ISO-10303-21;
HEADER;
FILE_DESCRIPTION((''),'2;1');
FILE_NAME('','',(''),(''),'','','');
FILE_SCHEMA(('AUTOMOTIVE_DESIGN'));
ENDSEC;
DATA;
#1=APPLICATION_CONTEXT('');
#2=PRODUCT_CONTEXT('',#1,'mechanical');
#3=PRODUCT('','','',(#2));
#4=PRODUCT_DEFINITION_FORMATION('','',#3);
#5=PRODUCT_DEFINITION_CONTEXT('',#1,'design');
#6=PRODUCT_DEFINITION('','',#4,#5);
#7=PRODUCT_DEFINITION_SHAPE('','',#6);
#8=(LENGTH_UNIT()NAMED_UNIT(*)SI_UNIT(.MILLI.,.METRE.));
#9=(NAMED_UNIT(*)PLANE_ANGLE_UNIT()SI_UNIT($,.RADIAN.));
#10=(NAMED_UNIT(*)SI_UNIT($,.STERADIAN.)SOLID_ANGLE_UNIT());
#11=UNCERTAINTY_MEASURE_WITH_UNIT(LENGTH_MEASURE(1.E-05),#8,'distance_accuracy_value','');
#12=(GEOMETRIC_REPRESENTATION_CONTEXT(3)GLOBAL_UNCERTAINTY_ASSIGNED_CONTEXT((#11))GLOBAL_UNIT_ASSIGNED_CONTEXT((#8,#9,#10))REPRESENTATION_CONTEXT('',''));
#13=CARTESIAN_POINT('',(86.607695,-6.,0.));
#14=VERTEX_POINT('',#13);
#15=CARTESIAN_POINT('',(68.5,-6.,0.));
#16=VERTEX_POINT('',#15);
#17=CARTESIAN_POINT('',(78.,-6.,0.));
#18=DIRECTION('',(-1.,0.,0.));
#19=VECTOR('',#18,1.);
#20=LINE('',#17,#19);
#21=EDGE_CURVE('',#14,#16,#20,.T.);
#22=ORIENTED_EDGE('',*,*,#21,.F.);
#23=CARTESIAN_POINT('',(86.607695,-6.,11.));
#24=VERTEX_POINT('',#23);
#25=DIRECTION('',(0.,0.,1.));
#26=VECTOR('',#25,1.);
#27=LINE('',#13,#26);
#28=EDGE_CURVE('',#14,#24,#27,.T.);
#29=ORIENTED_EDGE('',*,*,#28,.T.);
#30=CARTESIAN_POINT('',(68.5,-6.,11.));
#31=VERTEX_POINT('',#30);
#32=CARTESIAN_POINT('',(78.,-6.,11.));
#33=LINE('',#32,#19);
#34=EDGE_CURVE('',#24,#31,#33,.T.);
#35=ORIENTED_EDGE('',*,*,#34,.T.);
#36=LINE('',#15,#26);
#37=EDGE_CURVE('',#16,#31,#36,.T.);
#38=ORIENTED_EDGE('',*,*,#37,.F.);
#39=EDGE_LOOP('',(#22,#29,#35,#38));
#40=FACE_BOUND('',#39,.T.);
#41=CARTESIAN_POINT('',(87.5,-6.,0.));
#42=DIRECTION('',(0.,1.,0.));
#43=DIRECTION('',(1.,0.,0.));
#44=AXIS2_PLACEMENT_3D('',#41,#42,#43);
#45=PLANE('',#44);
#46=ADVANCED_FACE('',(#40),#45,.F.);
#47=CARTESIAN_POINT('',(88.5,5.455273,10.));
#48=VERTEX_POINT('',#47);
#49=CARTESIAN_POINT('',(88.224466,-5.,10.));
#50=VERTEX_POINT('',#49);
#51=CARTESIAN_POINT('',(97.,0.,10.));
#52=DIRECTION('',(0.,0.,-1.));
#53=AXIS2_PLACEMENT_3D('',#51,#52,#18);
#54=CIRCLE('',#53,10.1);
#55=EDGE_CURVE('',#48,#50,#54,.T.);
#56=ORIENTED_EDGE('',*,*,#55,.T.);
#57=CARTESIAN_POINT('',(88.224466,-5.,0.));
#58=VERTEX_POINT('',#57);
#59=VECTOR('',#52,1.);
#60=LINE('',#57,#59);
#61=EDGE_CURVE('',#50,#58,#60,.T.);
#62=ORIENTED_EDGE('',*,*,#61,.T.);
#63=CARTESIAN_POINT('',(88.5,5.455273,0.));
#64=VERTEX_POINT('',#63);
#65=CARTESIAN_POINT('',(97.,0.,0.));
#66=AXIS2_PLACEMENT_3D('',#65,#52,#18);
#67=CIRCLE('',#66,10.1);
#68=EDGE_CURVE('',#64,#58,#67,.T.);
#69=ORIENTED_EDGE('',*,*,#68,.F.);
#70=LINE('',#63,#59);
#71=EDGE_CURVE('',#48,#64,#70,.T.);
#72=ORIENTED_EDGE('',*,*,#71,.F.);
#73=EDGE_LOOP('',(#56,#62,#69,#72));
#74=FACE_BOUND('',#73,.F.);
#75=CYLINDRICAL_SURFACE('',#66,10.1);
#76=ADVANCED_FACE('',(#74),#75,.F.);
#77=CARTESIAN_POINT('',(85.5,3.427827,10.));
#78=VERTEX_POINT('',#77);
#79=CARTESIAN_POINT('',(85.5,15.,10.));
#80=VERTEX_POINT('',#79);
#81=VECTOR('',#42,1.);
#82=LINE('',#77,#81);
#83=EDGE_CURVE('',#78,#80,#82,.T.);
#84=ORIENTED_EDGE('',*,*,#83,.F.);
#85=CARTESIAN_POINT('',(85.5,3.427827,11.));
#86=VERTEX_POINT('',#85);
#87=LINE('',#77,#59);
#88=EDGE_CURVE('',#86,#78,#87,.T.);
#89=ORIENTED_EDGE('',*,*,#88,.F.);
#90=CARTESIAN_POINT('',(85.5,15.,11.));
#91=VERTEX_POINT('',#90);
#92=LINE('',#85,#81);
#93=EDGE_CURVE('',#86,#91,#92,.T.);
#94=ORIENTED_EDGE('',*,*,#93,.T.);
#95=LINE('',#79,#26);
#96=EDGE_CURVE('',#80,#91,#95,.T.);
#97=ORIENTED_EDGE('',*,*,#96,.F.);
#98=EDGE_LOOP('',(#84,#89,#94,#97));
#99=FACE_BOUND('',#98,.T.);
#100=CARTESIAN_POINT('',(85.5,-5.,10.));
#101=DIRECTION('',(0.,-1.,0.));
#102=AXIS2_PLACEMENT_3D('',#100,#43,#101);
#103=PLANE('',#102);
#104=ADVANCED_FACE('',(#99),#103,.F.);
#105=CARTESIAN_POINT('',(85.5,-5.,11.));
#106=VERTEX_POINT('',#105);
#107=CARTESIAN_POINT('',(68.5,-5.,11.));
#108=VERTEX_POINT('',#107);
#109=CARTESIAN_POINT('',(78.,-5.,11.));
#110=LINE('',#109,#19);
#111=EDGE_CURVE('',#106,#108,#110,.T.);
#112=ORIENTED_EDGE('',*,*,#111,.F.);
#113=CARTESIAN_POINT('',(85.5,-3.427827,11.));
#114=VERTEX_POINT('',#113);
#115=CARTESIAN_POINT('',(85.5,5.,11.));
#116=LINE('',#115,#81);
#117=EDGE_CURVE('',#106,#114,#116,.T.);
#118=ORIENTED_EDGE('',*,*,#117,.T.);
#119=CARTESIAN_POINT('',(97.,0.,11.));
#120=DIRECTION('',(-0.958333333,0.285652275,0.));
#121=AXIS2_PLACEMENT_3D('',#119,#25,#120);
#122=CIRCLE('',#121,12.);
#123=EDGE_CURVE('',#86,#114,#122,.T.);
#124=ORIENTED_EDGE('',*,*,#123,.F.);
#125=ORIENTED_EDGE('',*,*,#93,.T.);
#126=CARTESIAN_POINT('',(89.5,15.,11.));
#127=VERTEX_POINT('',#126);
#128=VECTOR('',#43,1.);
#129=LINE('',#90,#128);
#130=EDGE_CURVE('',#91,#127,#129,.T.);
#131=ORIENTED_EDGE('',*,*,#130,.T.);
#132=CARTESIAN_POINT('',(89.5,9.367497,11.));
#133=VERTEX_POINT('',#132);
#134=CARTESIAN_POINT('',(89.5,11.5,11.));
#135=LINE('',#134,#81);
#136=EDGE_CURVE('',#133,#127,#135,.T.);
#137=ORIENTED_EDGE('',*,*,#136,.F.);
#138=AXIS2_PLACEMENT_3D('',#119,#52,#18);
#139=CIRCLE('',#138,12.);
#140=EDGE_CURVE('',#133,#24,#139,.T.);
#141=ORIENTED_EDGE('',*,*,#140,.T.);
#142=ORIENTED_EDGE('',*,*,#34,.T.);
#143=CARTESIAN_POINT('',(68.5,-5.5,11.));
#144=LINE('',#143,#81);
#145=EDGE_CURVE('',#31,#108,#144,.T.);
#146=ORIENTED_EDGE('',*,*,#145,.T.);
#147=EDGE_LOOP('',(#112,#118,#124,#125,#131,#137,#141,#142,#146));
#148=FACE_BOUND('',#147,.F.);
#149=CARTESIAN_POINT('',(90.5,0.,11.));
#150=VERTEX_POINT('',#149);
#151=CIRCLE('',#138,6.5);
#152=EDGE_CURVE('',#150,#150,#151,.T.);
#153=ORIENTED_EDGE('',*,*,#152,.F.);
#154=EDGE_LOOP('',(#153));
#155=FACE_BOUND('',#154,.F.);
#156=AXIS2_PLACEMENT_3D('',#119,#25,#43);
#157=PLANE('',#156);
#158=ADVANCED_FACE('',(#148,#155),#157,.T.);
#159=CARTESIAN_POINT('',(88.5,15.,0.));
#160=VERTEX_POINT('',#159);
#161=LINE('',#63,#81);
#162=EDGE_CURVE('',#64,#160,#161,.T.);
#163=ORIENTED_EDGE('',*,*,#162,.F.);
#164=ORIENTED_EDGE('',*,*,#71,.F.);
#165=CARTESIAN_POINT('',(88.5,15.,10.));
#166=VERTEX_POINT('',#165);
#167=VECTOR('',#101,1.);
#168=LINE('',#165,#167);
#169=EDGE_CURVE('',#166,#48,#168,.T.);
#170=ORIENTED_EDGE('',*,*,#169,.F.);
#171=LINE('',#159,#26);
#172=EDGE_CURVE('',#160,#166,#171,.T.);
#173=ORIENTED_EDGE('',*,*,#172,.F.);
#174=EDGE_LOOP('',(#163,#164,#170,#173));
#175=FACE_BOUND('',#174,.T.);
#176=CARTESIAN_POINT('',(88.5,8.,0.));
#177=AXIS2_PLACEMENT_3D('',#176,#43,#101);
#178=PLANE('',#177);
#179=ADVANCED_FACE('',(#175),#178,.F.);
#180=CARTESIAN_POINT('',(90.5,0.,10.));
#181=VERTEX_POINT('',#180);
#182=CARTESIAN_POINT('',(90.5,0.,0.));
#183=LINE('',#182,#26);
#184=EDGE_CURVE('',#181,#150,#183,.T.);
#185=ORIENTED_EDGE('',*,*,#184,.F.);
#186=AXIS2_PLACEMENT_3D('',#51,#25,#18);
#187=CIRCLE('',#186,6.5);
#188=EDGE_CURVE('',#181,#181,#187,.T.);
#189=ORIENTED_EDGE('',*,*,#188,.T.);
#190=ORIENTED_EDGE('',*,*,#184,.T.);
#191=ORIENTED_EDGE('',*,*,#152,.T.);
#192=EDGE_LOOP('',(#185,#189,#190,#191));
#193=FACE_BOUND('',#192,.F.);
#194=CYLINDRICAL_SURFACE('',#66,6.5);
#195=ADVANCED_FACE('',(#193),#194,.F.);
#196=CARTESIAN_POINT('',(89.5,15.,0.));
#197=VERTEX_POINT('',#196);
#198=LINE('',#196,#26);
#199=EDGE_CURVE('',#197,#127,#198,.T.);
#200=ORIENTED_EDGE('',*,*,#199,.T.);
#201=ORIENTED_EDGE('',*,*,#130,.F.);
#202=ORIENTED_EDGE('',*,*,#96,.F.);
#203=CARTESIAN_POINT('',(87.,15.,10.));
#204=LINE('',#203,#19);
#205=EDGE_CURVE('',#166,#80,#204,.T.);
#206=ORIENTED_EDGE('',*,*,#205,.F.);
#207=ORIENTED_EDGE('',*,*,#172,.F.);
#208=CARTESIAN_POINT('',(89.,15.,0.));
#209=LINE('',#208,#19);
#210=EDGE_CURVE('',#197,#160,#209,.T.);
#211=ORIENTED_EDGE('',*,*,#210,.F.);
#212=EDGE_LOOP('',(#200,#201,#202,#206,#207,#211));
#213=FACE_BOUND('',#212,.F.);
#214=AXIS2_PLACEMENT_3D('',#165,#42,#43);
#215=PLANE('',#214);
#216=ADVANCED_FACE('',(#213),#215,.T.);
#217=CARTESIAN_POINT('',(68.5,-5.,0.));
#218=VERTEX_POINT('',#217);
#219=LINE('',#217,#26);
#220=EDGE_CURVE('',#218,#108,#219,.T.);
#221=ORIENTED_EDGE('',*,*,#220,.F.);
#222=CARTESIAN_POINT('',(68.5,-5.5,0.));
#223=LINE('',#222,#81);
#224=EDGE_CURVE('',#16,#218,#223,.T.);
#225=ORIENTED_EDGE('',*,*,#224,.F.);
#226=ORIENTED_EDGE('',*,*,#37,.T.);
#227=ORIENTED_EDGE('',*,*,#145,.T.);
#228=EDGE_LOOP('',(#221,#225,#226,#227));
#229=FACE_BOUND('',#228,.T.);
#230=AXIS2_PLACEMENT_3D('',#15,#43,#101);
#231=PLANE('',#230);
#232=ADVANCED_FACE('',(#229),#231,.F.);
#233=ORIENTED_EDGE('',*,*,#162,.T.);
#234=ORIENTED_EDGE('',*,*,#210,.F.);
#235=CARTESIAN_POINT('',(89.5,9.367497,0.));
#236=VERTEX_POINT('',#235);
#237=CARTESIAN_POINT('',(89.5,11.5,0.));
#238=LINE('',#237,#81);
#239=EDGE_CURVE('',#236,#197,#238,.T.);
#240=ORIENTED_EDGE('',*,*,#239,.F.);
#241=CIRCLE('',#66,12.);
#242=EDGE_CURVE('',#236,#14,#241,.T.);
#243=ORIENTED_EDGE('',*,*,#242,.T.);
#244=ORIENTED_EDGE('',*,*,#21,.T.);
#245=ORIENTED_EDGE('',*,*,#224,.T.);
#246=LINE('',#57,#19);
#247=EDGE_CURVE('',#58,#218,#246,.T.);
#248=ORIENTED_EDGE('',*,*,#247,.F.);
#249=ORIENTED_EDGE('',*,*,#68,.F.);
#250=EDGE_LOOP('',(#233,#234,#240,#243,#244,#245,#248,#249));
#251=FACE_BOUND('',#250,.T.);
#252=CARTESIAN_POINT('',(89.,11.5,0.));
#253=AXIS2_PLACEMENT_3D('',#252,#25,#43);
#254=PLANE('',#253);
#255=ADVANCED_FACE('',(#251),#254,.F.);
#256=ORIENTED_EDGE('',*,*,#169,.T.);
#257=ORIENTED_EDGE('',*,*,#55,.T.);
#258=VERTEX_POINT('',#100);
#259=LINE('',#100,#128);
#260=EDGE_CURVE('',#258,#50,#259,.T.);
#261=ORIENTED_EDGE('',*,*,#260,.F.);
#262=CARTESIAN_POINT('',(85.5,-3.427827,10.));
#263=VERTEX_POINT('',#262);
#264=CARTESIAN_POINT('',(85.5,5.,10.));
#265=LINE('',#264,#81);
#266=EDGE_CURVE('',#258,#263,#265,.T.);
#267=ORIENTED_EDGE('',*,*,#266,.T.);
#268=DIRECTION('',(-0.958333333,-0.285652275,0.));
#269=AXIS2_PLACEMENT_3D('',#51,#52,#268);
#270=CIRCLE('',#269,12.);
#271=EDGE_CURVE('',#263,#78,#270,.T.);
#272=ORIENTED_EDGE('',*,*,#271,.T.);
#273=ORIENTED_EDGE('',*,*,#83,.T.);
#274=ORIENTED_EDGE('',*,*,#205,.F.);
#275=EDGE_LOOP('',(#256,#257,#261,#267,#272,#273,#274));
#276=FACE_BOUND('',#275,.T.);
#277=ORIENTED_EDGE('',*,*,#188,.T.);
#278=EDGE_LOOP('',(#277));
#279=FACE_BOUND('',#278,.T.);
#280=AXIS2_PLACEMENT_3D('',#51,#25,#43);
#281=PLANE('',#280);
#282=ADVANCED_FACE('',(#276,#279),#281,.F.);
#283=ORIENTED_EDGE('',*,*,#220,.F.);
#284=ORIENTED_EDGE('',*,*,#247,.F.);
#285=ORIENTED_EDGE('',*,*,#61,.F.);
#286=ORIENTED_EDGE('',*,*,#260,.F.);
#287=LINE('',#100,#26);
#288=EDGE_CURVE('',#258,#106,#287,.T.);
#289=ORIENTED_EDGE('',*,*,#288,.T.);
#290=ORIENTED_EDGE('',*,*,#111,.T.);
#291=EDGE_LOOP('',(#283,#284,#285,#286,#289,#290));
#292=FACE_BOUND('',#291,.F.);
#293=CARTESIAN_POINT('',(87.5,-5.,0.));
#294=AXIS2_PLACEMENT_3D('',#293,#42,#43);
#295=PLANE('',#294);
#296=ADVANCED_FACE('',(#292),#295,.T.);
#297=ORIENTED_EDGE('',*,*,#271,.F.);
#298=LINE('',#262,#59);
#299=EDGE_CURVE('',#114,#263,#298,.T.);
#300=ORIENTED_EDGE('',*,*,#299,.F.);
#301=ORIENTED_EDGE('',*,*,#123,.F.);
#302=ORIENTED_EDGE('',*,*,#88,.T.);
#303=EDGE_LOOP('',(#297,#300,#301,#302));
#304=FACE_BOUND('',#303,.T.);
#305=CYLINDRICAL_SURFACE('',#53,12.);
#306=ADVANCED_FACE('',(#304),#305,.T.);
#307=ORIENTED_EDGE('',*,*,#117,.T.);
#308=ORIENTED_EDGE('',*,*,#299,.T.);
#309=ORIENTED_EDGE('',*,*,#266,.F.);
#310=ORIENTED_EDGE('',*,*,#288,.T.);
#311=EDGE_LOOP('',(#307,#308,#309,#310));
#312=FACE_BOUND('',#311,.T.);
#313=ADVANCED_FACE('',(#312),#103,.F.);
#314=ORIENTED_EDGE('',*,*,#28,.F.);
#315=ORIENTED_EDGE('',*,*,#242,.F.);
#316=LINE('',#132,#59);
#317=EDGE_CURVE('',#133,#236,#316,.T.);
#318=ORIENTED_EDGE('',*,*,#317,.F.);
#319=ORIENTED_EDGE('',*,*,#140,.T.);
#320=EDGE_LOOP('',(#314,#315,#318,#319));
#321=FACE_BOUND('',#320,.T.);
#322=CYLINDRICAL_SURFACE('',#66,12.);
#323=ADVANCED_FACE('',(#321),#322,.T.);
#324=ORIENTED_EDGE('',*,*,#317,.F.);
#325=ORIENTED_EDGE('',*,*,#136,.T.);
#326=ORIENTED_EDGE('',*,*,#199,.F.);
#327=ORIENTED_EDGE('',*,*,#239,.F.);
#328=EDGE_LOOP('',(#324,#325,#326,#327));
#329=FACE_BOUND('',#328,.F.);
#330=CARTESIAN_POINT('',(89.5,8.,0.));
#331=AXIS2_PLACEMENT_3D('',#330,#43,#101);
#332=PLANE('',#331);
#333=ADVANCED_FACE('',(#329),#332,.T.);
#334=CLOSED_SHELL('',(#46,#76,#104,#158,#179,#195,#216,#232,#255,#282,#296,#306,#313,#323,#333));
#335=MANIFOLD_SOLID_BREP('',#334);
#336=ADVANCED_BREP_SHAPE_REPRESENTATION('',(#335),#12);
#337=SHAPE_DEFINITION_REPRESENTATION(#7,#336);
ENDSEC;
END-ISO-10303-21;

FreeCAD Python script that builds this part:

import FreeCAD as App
import Part
import Sketcher
Q = App.Units.Quantity

doc = App.newDocument("Part")
body = doc.addObject("PartDesign::Body", "Body")

# Sketch on XY plane
sketch1 = body.newObject("Sketcher::SketchObject", "Sketch")
sketch1.AttachmentSupport = (doc.getObject("XY_Plane"), [""])
sketch1.MapMode = "FlatFace"
sketch1.addGeometry(Part.Circle(App.Vector(-97, 0, 0), App.Vector(0, 0, 1), 6), False)
sketch1.addConstraint(Sketcher.Constraint("PointOnObject", 0, 3, -1))
sketch1.addConstraint(Sketcher.Constraint("Diameter", 0, Q("13 mm")))
sketch1.addConstraint(Sketcher.Constraint("DistanceX", 0, 3, -1, 1, Q("97 mm")))
pad1 = body.newObject("PartDesign::Pad", "Pad")
pad1.Profile = sketch1
pad1.Length = 11
body2 = doc.addObject("PartDesign::Body", "Body001")

# Sketch on XY plane
sketch2 = body2.newObject("Sketcher::SketchObject", "Sketch001")
sketch2.AttachmentSupport = (doc.getObject("XY_Plane001"), [""])
sketch2.MapMode = "FlatFace"
sketch2.addGeometry(Part.Circle(App.Vector(-83, 10, 0), App.Vector(0, 0, 1), 2.5), False)
sketch2.addConstraint(Sketcher.Constraint("Diameter", 0, Q("5 mm")))
sketch2.addConstraint(Sketcher.Constraint("DistanceX", 0, 3, -1, 1, Q("83 mm")))
sketch2.addConstraint(Sketcher.Constraint("DistanceY", -1, 1, 0, 3, Q("10 mm")))
pad2 = body2.newObject("PartDesign::Pad", "Pad001")
pad2.Profile = sketch2
pad2.Length = 11
body3 = doc.addObject("PartDesign::Body", "Body002")

# Sketch on XY plane
sketch3 = body3.newObject("Sketcher::SketchObject", "Sketch002")
sketch3.AttachmentSupport = (doc.getObject("XY_Plane002"), [""])
sketch3.MapMode = "FlatFace"
sketch3.addGeometry(Part.Circle(App.Vector(-75, 0, 0), App.Vector(0, 0, 1), 2.5), False)
sketch3.addConstraint(Sketcher.Constraint("PointOnObject", 0, 3, -1))
sketch3.addConstraint(Sketcher.Constraint("Diameter", 0, Q("5 mm")))
sketch3.addConstraint(Sketcher.Constraint("DistanceX", 0, 3, -1, 1, Q("75 mm")))
pad3 = body3.newObject("PartDesign::Pad", "Pad002")
pad3.Profile = sketch3
pad3.Length = 11
body4 = doc.addObject("PartDesign::Body", "Body003")

# Sketch on XY plane
sketch4 = body4.newObject("Sketcher::SketchObject", "Sketch003")
sketch4.AttachmentSupport = (doc.getObject("XY_Plane003"), [""])
sketch4.MapMode = "FlatFace"
sketch4.addGeometry(Part.LineSegment(App.Vector(-89.5, 15, 0), App.Vector(-89.5, 8, 0)), False)
sketch4.addGeometry(Part.LineSegment(App.Vector(-89.5, 8, 0), App.Vector(-88.5, 8, 0)), False)
sketch4.addGeometry(Part.LineSegment(App.Vector(-88.5, 8, 0), App.Vector(-88.5, 15, 0)), False)
sketch4.addGeometry(Part.LineSegment(App.Vector(-88.5, 15, 0), App.Vector(-89.5, 15, 0)), False)
sketch4.addConstraint(Sketcher.Constraint("Coincident", 0, 2, 1, 1))
sketch4.addConstraint(Sketcher.Constraint("Coincident", 1, 2, 2, 1))
sketch4.addConstraint(Sketcher.Constraint("Coincident", 2, 2, 3, 1))
sketch4.addConstraint(Sketcher.Constraint("Coincident", 3, 2, 0, 1))
sketch4.addConstraint(Sketcher.Constraint("Vertical", 0))
sketch4.addConstraint(Sketcher.Constraint("Horizontal", 1))
sketch4.addConstraint(Sketcher.Constraint("Vertical", 2))
sketch4.addConstraint(Sketcher.Constraint("Horizontal", 3))
sketch4.addConstraint(Sketcher.Constraint("DistanceX", 1, 1, 1, 2, Q("1 mm")))
sketch4.addConstraint(Sketcher.Constraint("DistanceY", 0, 2, 0, 1, Q("7 mm")))
sketch4.addConstraint(Sketcher.Constraint("DistanceY", -1, 1, 0, 2, Q("8 mm")))
sketch4.addConstraint(Sketcher.Constraint("DistanceX", 0, 2, -1, 1, Q("89.5 mm")))
pad4 = body4.newObject("PartDesign::Pad", "Pad003")
pad4.Profile = sketch4
pad4.Length = 11
body5 = doc.addObject("PartDesign::Body", "Body004")

# Sketch on XY plane
sketch5 = body5.newObject("Sketcher::SketchObject", "Sketch004")
sketch5.AttachmentSupport = (doc.getObject("XY_Plane004"), [""])
sketch5.MapMode = "FlatFace"
sketch5.AttachmentOffset = App.Placement(App.Vector(0, 0, 10), App.Rotation())
sketch5.addGeometry(Part.LineSegment(App.Vector(-88.5, 15, 0), App.Vector(-88.5, -5, 0)), False)
sketch5.addGeometry(Part.LineSegment(App.Vector(-88.5, -5, 0), App.Vector(-85.5, -5, 0)), False)
sketch5.addGeometry(Part.LineSegment(App.Vector(-85.5, -5, 0), App.Vector(-85.5, 15, 0)), False)
sketch5.addGeometry(Part.LineSegment(App.Vector(-85.5, 15, 0), App.Vector(-88.5, 15, 0)), False)
sketch5.addConstraint(Sketcher.Constraint("Coincident", 0, 2, 1, 1))
sketch5.addConstraint(Sketcher.Constraint("Coincident", 1, 2, 2, 1))
sketch5.addConstraint(Sketcher.Constraint("Coincident", 2, 2, 3, 1))
sketch5.addConstraint(Sketcher.Constraint("Coincident", 3, 2, 0, 1))
sketch5.addConstraint(Sketcher.Constraint("Vertical", 0))
sketch5.addConstraint(Sketcher.Constraint("Horizontal", 1))
sketch5.addConstraint(Sketcher.Constraint("Vertical", 2))
sketch5.addConstraint(Sketcher.Constraint("Horizontal", 3))
sketch5.addConstraint(Sketcher.Constraint("DistanceX", 1, 1, 1, 2, Q("3 mm")))
sketch5.addConstraint(Sketcher.Constraint("DistanceY", 0, 2, 0, 1, Q("20 mm")))
sketch5.addConstraint(Sketcher.Constraint("DistanceY", 0, 2, -1, 1, Q("5 mm")))
sketch5.addConstraint(Sketcher.Constraint("DistanceX", 0, 2, -1, 1, Q("88.5 mm")))
pad5 = body5.newObject("PartDesign::Pad", "Pad004")
pad5.Profile = sketch5
pad5.Length = 1
body6 = doc.addObject("PartDesign::Body", "Body005")

# Sketch on XY plane
sketch6 = body6.newObject("Sketcher::SketchObject", "Sketch005")
sketch6.AttachmentSupport = (doc.getObject("XY_Plane005"), [""])
sketch6.MapMode = "FlatFace"
sketch6.AttachmentOffset = App.Placement(App.Vector(0, 0, 10), App.Rotation())
sketch6.addGeometry(Part.Circle(App.Vector(-97, 0, 0), App.Vector(0, 0, 1), 12), False)
sketch6.addConstraint(Sketcher.Constraint("PointOnObject", 0, 3, -1))
sketch6.addConstraint(Sketcher.Constraint("Diameter", 0, Q("24 mm")))
sketch6.addConstraint(Sketcher.Constraint("DistanceX", 0, 3, -1, 1, Q("97 mm")))
pad6 = body6.newObject("PartDesign::Pad", "Pad005")
pad6.Profile = sketch6
pad6.Length = 1
body7 = doc.addObject("PartDesign::Body", "Body006")

# Sketch on XY plane
sketch7 = body7.newObject("Sketcher::SketchObject", "Sketch006")
sketch7.AttachmentSupport = (doc.getObject("XY_Plane006"), [""])
sketch7.MapMode = "FlatFace"
sketch7.addGeometry(Part.LineSegment(App.Vector(8, 5, 0), App.Vector(0, 10, 0)), False)
sketch7.addGeometry(Part.LineSegment(App.Vector(0, 10, 0), App.Vector(-8, 5, 0)), False)
sketch7.addGeometry(Part.LineSegment(App.Vector(-8, 5, 0), App.Vector(-8, -5, 0)), False)
sketch7.addGeometry(Part.LineSegment(App.Vector(-8, -5, 0), App.Vector(0, -10, 0)), False)
sketch7.addGeometry(Part.LineSegment(App.Vector(0, -10, 0), App.Vector(8, -5, 0)), False)
sketch7.addGeometry(Part.LineSegment(App.Vector(8, -5, 0), App.Vector(8, 5, 0)), False)
sketch7.addConstraint(Sketcher.Constraint("Coincident", 0, 2, 1, 1))
sketch7.addConstraint(Sketcher.Constraint("Coincident", 1, 2, 2, 1))
sketch7.addConstraint(Sketcher.Constraint("Coincident", 2, 2, 3, 1))
sketch7.addConstraint(Sketcher.Constraint("Coincident", 3, 2, 4, 1))
sketch7.addConstraint(Sketcher.Constraint("Coincident", 4, 2, 5, 1))
sketch7.addConstraint(Sketcher.Constraint("Coincident", 5, 2, 0, 1))
sketch7.addConstraint(Sketcher.Constraint("Vertical", 2))
sketch7.addConstraint(Sketcher.Constraint("Vertical", 5))
sketch7.addConstraint(Sketcher.Constraint("Symmetric", 0, 2, 3, 2, -1, 1))
sketch7.addConstraint(Sketcher.Constraint("Symmetric", 1, 2, 4, 2, -1, 1))
sketch7.addConstraint(Sketcher.Constraint("PointOnObject", 0, 2, -2))
sketch7.addConstraint(Sketcher.Constraint("Parallel", 0, 3))
sketch7.addConstraint(Sketcher.Constraint("Horizontal", 2, 2, 4, 2))
sketch7.addConstraint(Sketcher.Constraint("Angle", 0, Q("149.999996 deg")))
sketch7.addConstraint(Sketcher.Constraint("DistanceX", 2, 2, 4, 2, Q("17 mm")))
sketch7.addConstraint(Sketcher.Constraint("DistanceY", 2, 2, 2, 1, Q("9.814954 mm")))
pad7 = body7.newObject("PartDesign::Pad", "Pad006")
pad7.Profile = sketch7
pad7.Length = 10
body8 = doc.addObject("PartDesign::Body", "Body007")
doc.recompute()

body7.Placement = App.Placement(App.Vector(0, 45.1, 0), App.Rotation(App.Vector(0, 0, 1), 0))
boolean = body8.newObject("PartDesign::Boolean", "Boolean")
boolean.Type = "Fuse"
boolean.addObjects([body7])
body9 = doc.addObject("PartDesign::Body", "Body008")

# Sketch on XY plane
sketch8 = body9.newObject("Sketcher::SketchObject", "Sketch007")
sketch8.AttachmentSupport = (doc.getObject("XY_Plane008"), [""])
sketch8.MapMode = "FlatFace"
sketch8.addGeometry(Part.LineSegment(App.Vector(-88, 95, 0), App.Vector(-88, -5, 0)), False)
sketch8.addGeometry(Part.LineSegment(App.Vector(-88, -5, 0), App.Vector(88, -5, 0)), False)
sketch8.addGeometry(Part.LineSegment(App.Vector(88, -5, 0), App.Vector(88, 95, 0)), False)
sketch8.addGeometry(Part.LineSegment(App.Vector(88, 95, 0), App.Vector(-88, 95, 0)), False)
sketch8.addConstraint(Sketcher.Constraint("Coincident", 0, 2, 1, 1))
sketch8.addConstraint(Sketcher.Constraint("Coincident", 1, 2, 2, 1))
sketch8.addConstraint(Sketcher.Constraint("Coincident", 2, 2, 3, 1))
sketch8.addConstraint(Sketcher.Constraint("Coincident", 3, 2, 0, 1))
sketch8.addConstraint(Sketcher.Constraint("Vertical", 0))
sketch8.addConstraint(Sketcher.Constraint("Horizontal", 1))
sketch8.addConstraint(Sketcher.Constraint("Vertical", 2))
sketch8.addConstraint(Sketcher.Constraint("Horizontal", 3))
sketch8.addConstraint(Sketcher.Constraint("DistanceX", 1, 1, 1, 2, Q("177 mm")))
sketch8.addConstraint(Sketcher.Constraint("DistanceY", 0, 2, 0, 1, Q("100 mm")))
sketch8.addConstraint(Sketcher.Constraint("DistanceY", 0, 2, -1, 1, Q("5 mm")))
sketch8.addConstraint(Sketcher.Constraint("DistanceX", 0, 2, -1, 1, Q("88.5 mm")))
pad8 = body9.newObject("PartDesign::Pad", "Pad007")
pad8.Profile = sketch8
pad8.Length = 10
doc.recompute()

boolean2 = body9.newObject("PartDesign::Boolean", "Boolean001")
boolean2.Type = "Cut"
boolean2.addObjects([body8])
body10 = doc.addObject("PartDesign::Body", "Body009")

# Sketch on XY plane
sketch9 = body10.newObject("Sketcher::SketchObject", "Sketch008")
sketch9.AttachmentSupport = (doc.getObject("XY_Plane009"), [""])
sketch9.MapMode = "FlatFace"
sketch9.addGeometry(Part.Circle(App.Vector(0, 20, 0), App.Vector(0, 0, 1), 8), False)
sketch9.addConstraint(Sketcher.Constraint("PointOnObject", 0, 3, -2))
sketch9.addConstraint(Sketcher.Constraint("Diameter", 0, Q("15 mm")))
sketch9.addConstraint(Sketcher.Constraint("DistanceY", -1, 1, 0, 3, Q("20 mm")))
pad9 = body10.newObject("PartDesign::Pad", "Pad008")
pad9.Profile = sketch9
pad9.Length = 10
body11 = doc.addObject("PartDesign::Body", "Body010")

# Sketch on XY plane
sketch10 = body11.newObject("Sketcher::SketchObject", "Sketch009")
sketch10.AttachmentSupport = (doc.getObject("XY_Plane010"), [""])
sketch10.MapMode = "FlatFace"
sketch10.addGeometry(Part.Circle(App.Vector(0, 20, 0), App.Vector(0, 0, 1), 10), False)
sketch10.addConstraint(Sketcher.Constraint("PointOnObject", 0, 3, -2))
sketch10.addConstraint(Sketcher.Constraint("Diameter", 0, Q("20 mm")))
sketch10.addConstraint(Sketcher.Constraint("DistanceY", -1, 1, 0, 3, Q("20 mm")))
pad10 = body11.newObject("PartDesign::Pad", "Pad009")
pad10.Profile = sketch10
pad10.Length = 10
doc.recompute()

boolean3 = body11.newObject("PartDesign::Boolean", "Boolean002")
boolean3.Type = "Cut"
boolean3.addObjects([body10])
body12 = doc.addObject("PartDesign::Body", "Body011")
doc.recompute()

body11.Placement = App.Placement(App.Vector(-97, -20, 0), App.Rotation(App.Vector(0, 0, 1), 0))
boolean4 = body12.newObject("PartDesign::Boolean", "Boolean003")
boolean4.Type = "Fuse"
boolean4.addObjects([body11])
body13 = doc.addObject("PartDesign::Body", "Body012")

# Sketch on XY plane
sketch11 = body13.newObject("Sketcher::SketchObject", "Sketch010")
sketch11.AttachmentSupport = (doc.getObject("XY_Plane012"), [""])
sketch11.MapMode = "FlatFace"
sketch11.addGeometry(Part.Circle(App.Vector(0, 20, 0), App.Vector(0, 0, 1), 8), False)
sketch11.addConstraint(Sketcher.Constraint("PointOnObject", 0, 3, -2))
sketch11.addConstraint(Sketcher.Constraint("Diameter", 0, Q("15 mm")))
sketch11.addConstraint(Sketcher.Constraint("DistanceY", -1, 1, 0, 3, Q("20 mm")))
pad11 = body13.newObject("PartDesign::Pad", "Pad010")
pad11.Profile = sketch11
pad11.Length = 10
body14 = doc.addObject("PartDesign::Body", "Body013")

# Sketch on XY plane
sketch12 = body14.newObject("Sketcher::SketchObject", "Sketch011")
sketch12.AttachmentSupport = (doc.getObject("XY_Plane013"), [""])
sketch12.MapMode = "FlatFace"
sketch12.addGeometry(Part.Circle(App.Vector(0, 20, 0), App.Vector(0, 0, 1), 10), False)
sketch12.addConstraint(Sketcher.Constraint("PointOnObject", 0, 3, -2))
sketch12.addConstraint(Sketcher.Constraint("Diameter", 0, Q("20 mm")))
sketch12.addConstraint(Sketcher.Constraint("DistanceY", -1, 1, 0, 3, Q("20 mm")))
pad12 = body14.newObject("PartDesign::Pad", "Pad011")
pad12.Profile = sketch12
pad12.Length = 10
doc.recompute()

boolean5 = body14.newObject("PartDesign::Boolean", "Boolean004")
boolean5.Type = "Cut"
boolean5.addObjects([body13])
body15 = doc.addObject("PartDesign::Body", "Body014")
body15.AllowCompound = True
doc.recompute()

body14.Placement = App.Placement(App.Vector(97, -20, 0), App.Rotation(App.Vector(0, 0, 1), 0))
boolean6 = body15.newObject("PartDesign::Boolean", "Boolean005")
boolean6.Type = "Fuse"
boolean6.addObjects([body14])
doc.recompute()

boolean7 = body15.newObject("PartDesign::Boolean", "Boolean006")
boolean7.Type = "Fuse"
boolean7.addObjects([body12])
body16 = doc.addObject("PartDesign::Body", "Body015")

# Sketch on XY plane
sketch13 = body16.newObject("Sketcher::SketchObject", "Sketch012")
sketch13.AttachmentSupport = (doc.getObject("XY_Plane015"), [""])
sketch13.MapMode = "FlatFace"
sketch13.addGeometry(Part.LineSegment(App.Vector(0, 8, 0), App.Vector(-6, 4, 0)), False)
sketch13.addGeometry(Part.LineSegment(App.Vector(-6, 4, 0), App.Vector(-6, -4, 0)), False)
sketch13.addGeometry(Part.LineSegment(App.Vector(-6, -4, 0), App.Vector(0, -8, 0)), False)
sketch13.addGeometry(Part.LineSegment(App.Vector(0, -8, 0), App.Vector(6, -4, 0)), False)
sketch13.addGeometry(Part.LineSegment(App.Vector(6, -4, 0), App.Vector(6, 4, 0)), False)
sketch13.addGeometry(Part.LineSegment(App.Vector(6, 4, 0), App.Vector(0, 8, 0)), False)
sketch13.addConstraint(Sketcher.Constraint("Coincident", 0, 2, 1, 1))
sketch13.addConstraint(Sketcher.Constraint("Coincident", 1, 2, 2, 1))
sketch13.addConstraint(Sketcher.Constraint("Coincident", 2, 2, 3, 1))
sketch13.addConstraint(Sketcher.Constraint("Coincident", 3, 2, 4, 1))
sketch13.addConstraint(Sketcher.Constraint("Coincident", 4, 2, 5, 1))
sketch13.addConstraint(Sketcher.Constraint("Coincident", 5, 2, 0, 1))
sketch13.addConstraint(Sketcher.Constraint("Vertical", 1))
sketch13.addConstraint(Sketcher.Constraint("Vertical", 4))
sketch13.addConstraint(Sketcher.Constraint("Symmetric", 0, 2, 3, 2, -1, 1))
sketch13.addConstraint(Sketcher.Constraint("Symmetric", 2, 2, 5, 2, -1, 1))
sketch13.addConstraint(Sketcher.Constraint("PointOnObject", 2, 2, -2))
sketch13.addConstraint(Sketcher.Constraint("Parallel", 2, 5))
sketch13.addConstraint(Sketcher.Constraint("Horizontal", 1, 2, 3, 2))
sketch13.addConstraint(Sketcher.Constraint("Angle", 0, Q("-150.000005 deg")))
sketch13.addConstraint(Sketcher.Constraint("DistanceX", 1, 2, 3, 2, Q("13 mm")))
sketch13.addConstraint(Sketcher.Constraint("DistanceY", 1, 2, 1, 1, Q("7.505554 mm")))
pad13 = body16.newObject("PartDesign::Pad", "Pad012")
pad13.Profile = sketch13
pad13.Length = 6.5

# Sketch on XY plane
sketch14 = body16.newObject("Sketcher::SketchObject", "Sketch013")
sketch14.AttachmentSupport = (doc.getObject("XY_Plane015"), [""])
sketch14.MapMode = "FlatFace"
sketch14.AttachmentOffset = App.Placement(App.Vector(0, 0, 6.5), App.Rotation())
sketch14.addGeometry(Part.LineSegment(App.Vector(0, 6, 0), App.Vector(-5, 3, 0)), False)
sketch14.addGeometry(Part.LineSegment(App.Vector(-5, 3, 0), App.Vector(-5, -3, 0)), False)
sketch14.addGeometry(Part.LineSegment(App.Vector(-5, -3, 0), App.Vector(0, -6, 0)), False)
sketch14.addGeometry(Part.LineSegment(App.Vector(0, -6, 0), App.Vector(5, -3, 0)), False)
sketch14.addGeometry(Part.LineSegment(App.Vector(5, -3, 0), App.Vector(5, 3, 0)), False)
sketch14.addGeometry(Part.LineSegment(App.Vector(5, 3, 0), App.Vector(0, 6, 0)), False)
sketch14.addConstraint(Sketcher.Constraint("Coincident", 0, 2, 1, 1))
sketch14.addConstraint(Sketcher.Constraint("Coincident", 1, 2, 2, 1))
sketch14.addConstraint(Sketcher.Constraint("Coincident", 2, 2, 3, 1))
sketch14.addConstraint(Sketcher.Constraint("Coincident", 3, 2, 4, 1))
sketch14.addConstraint(Sketcher.Constraint("Coincident", 4, 2, 5, 1))
sketch14.addConstraint(Sketcher.Constraint("Coincident", 5, 2, 0, 1))
sketch14.addConstraint(Sketcher.Constraint("Vertical", 1))
sketch14.addConstraint(Sketcher.Constraint("Vertical", 4))
sketch14.addConstraint(Sketcher.Constraint("Symmetric", 0, 2, 3, 2, -1, 1))
sketch14.addConstraint(Sketcher.Constraint("Symmetric", 2, 2, 5, 2, -1, 1))
sketch14.addConstraint(Sketcher.Constraint("PointOnObject", 2, 2, -2))
sketch14.addConstraint(Sketcher.Constraint("Parallel", 2, 5))
sketch14.addConstraint(Sketcher.Constraint("Horizontal", 1, 2, 3, 2))
sketch14.addConstraint(Sketcher.Constraint("Angle", 0, Q("-149.999994 deg")))
sketch14.addConstraint(Sketcher.Constraint("DistanceX", 0, 2, -1, 1, Q("5 mm")))
sketch14.addConstraint(Sketcher.Constraint("DistanceY", 1, 2, 1, 1, Q("5.773502 mm")))
pad14 = body16.newObject("PartDesign::Pad", "Pad013")
pad14.Profile = sketch14
pad14.Length = 4
body17 = doc.addObject("PartDesign::Body", "Body016")

# Sketch on XY plane
sketch15 = body17.newObject("Sketcher::SketchObject", "Sketch014")
sketch15.AttachmentSupport = (doc.getObject("XY_Plane016"), [""])
sketch15.MapMode = "FlatFace"
sketch15.addGeometry(Part.LineSegment(App.Vector(0, 10, 0), App.Vector(-8, 5, 0)), False)
sketch15.addGeometry(Part.LineSegment(App.Vector(-8, 5, 0), App.Vector(-8, -5, 0)), False)
sketch15.addGeometry(Part.LineSegment(App.Vector(-8, -5, 0), App.Vector(0, -10, 0)), False)
sketch15.addGeometry(Part.LineSegment(App.Vector(0, -10, 0), App.Vector(8, -5, 0)), False)
sketch15.addGeometry(Part.LineSegment(App.Vector(8, -5, 0), App.Vector(8, 5, 0)), False)
sketch15.addGeometry(Part.LineSegment(App.Vector(8, 5, 0), App.Vector(0, 10, 0)), False)
sketch15.addConstraint(Sketcher.Constraint("Coincident", 0, 2, 1, 1))
sketch15.addConstraint(Sketcher.Constraint("Coincident", 1, 2, 2, 1))
sketch15.addConstraint(Sketcher.Constraint("Coincident", 2, 2, 3, 1))
sketch15.addConstraint(Sketcher.Constraint("Coincident", 3, 2, 4, 1))
sketch15.addConstraint(Sketcher.Constraint("Coincident", 4, 2, 5, 1))
sketch15.addConstraint(Sketcher.Constraint("Coincident", 5, 2, 0, 1))
sketch15.addConstraint(Sketcher.Constraint("Vertical", 1))
sketch15.addConstraint(Sketcher.Constraint("Vertical", 4))
sketch15.addConstraint(Sketcher.Constraint("Symmetric", 0, 2, 3, 2, -1, 1))
sketch15.addConstraint(Sketcher.Constraint("Symmetric", 2, 2, 5, 2, -1, 1))
sketch15.addConstraint(Sketcher.Constraint("PointOnObject", 2, 2, -2))
sketch15.addConstraint(Sketcher.Constraint("Parallel", 2, 5))
sketch15.addConstraint(Sketcher.Constraint("Horizontal", 1, 2, 3, 2))
sketch15.addConstraint(Sketcher.Constraint("Angle", 0, Q("-149.999996 deg")))
sketch15.addConstraint(Sketcher.Constraint("DistanceX", 1, 2, 3, 2, Q("17 mm")))
sketch15.addConstraint(Sketcher.Constraint("DistanceY", 1, 2, 1, 1, Q("9.814954 mm")))
pad15 = body17.newObject("PartDesign::Pad", "Pad014")
pad15.Profile = sketch15
pad15.Length = 10
doc.recompute()

boolean8 = body17.newObject("PartDesign::Boolean", "Boolean007")
boolean8.Type = "Cut"
boolean8.addObjects([body16])
body18 = doc.addObject("PartDesign::Body", "Body017")
doc.recompute()

body17.Placement = App.Placement(App.Vector(0, 45.1, 0), App.Rotation(App.Vector(0, 0, 1), 0))
boolean9 = body18.newObject("PartDesign::Boolean", "Boolean008")
boolean9.Type = "Fuse"
boolean9.addObjects([body17])
body19 = doc.addObject("PartDesign::Body", "Body018")

# Sketch on XY plane
sketch16 = body19.newObject("Sketcher::SketchObject", "Sketch015")
sketch16.AttachmentSupport = (doc.getObject("XY_Plane018"), [""])
sketch16.MapMode = "FlatFace"
sketch16.addGeometry(Part.Circle(App.Vector(0, 20, 0), App.Vector(0, 0, 1), 8), False)
sketch16.addConstraint(Sketcher.Constraint("PointOnObject", 0, 3, -2))
sketch16.addConstraint(Sketcher.Constraint("Diameter", 0, Q("15 mm")))
sketch16.addConstraint(Sketcher.Constraint("DistanceY", -1, 1, 0, 3, Q("20 mm")))
pad16 = body19.newObject("PartDesign::Pad", "Pad015")
pad16.Profile = sketch16
pad16.Length = 10
body20 = doc.addObject("PartDesign::Body", "Body019")

# Sketch on XY plane
sketch17 = body20.newObject("Sketcher::SketchObject", "Sketch016")
sketch17.AttachmentSupport = (doc.getObject("XY_Plane019"), [""])
sketch17.MapMode = "FlatFace"
sketch17.addGeometry(Part.Circle(App.Vector(0, 20, 0), App.Vector(0, 0, 1), 10), False)
sketch17.addConstraint(Sketcher.Constraint("PointOnObject", 0, 3, -2))
sketch17.addConstraint(Sketcher.Constraint("Diameter", 0, Q("20 mm")))
sketch17.addConstraint(Sketcher.Constraint("DistanceY", -1, 1, 0, 3, Q("20 mm")))
pad17 = body20.newObject("PartDesign::Pad", "Pad016")
pad17.Profile = sketch17
pad17.Length = 10
doc.recompute()

boolean10 = body20.newObject("PartDesign::Boolean", "Boolean009")
boolean10.Type = "Cut"
boolean10.addObjects([body19])
body21 = doc.addObject("PartDesign::Body", "Body020")
doc.recompute()

body20.Placement = App.Placement(App.Vector(-97, -20, 0), App.Rotation(App.Vector(0, 0, 1), 0))
boolean11 = body21.newObject("PartDesign::Boolean", "Boolean010")
boolean11.Type = "Fuse"
boolean11.addObjects([body20])
body22 = doc.addObject("PartDesign::Body", "Body021")

# Sketch on XY plane
sketch18 = body22.newObject("Sketcher::SketchObject", "Sketch017")
sketch18.AttachmentSupport = (doc.getObject("XY_Plane021"), [""])
sketch18.MapMode = "FlatFace"
sketch18.addGeometry(Part.Circle(App.Vector(0, 20, 0), App.Vector(0, 0, 1), 8), False)
sketch18.addConstraint(Sketcher.Constraint("PointOnObject", 0, 3, -2))
sketch18.addConstraint(Sketcher.Constraint("Diameter", 0, Q("15 mm")))
sketch18.addConstraint(Sketcher.Constraint("DistanceY", -1, 1, 0, 3, Q("20 mm")))
pad18 = body22.newObject("PartDesign::Pad", "Pad017")
pad18.Profile = sketch18
pad18.Length = 10
body23 = doc.addObject("PartDesign::Body", "Body022")

# Sketch on XY plane
sketch19 = body23.newObject("Sketcher::SketchObject", "Sketch018")
sketch19.AttachmentSupport = (doc.getObject("XY_Plane022"), [""])
sketch19.MapMode = "FlatFace"
sketch19.addGeometry(Part.Circle(App.Vector(0, 20, 0), App.Vector(0, 0, 1), 10), False)
sketch19.addConstraint(Sketcher.Constraint("PointOnObject", 0, 3, -2))
sketch19.addConstraint(Sketcher.Constraint("Diameter", 0, Q("20 mm")))
sketch19.addConstraint(Sketcher.Constraint("DistanceY", -1, 1, 0, 3, Q("20 mm")))
pad19 = body23.newObject("PartDesign::Pad", "Pad018")
pad19.Profile = sketch19
pad19.Length = 10
doc.recompute()

boolean12 = body23.newObject("PartDesign::Boolean", "Boolean011")
boolean12.Type = "Cut"
boolean12.addObjects([body22])
body24 = doc.addObject("PartDesign::Body", "Body023")
body24.AllowCompound = True
doc.recompute()

body23.Placement = App.Placement(App.Vector(97, -20, 0), App.Rotation(App.Vector(0, 0, 1), 0))
boolean13 = body24.newObject("PartDesign::Boolean", "Boolean012")
boolean13.Type = "Fuse"
boolean13.addObjects([body23])
doc.recompute()

boolean14 = body24.newObject("PartDesign::Boolean", "Boolean013")
boolean14.Type = "Fuse"
boolean14.addObjects([body21])
body25 = doc.addObject("PartDesign::Body", "Body024")
body25.AllowCompound = True
doc.recompute()

body24.Placement = App.Placement(App.Vector(0, 90, 0), App.Rotation(App.Vector(0, 0, 1), 0))
boolean15 = body25.newObject("PartDesign::Boolean", "Boolean014")
boolean15.Type = "Fuse"
boolean15.addObjects([body24])
doc.recompute()

boolean16 = body25.newObject("PartDesign::Boolean", "Boolean015")
boolean16.Type = "Fuse"
boolean16.addObjects([body9])
doc.recompute()

boolean17 = body25.newObject("PartDesign::Boolean", "Boolean016")
boolean17.Type = "Fuse"
boolean17.addObjects([body15])
doc.recompute()

boolean18 = body25.newObject("PartDesign::Boolean", "Boolean017")
boolean18.Type = "Fuse"
boolean18.addObjects([body18])
body26 = doc.addObject("PartDesign::Body", "Body025")

# Sketch on XY plane
sketch20 = body26.newObject("Sketcher::SketchObject", "Sketch019")
sketch20.AttachmentSupport = (doc.getObject("XY_Plane025"), [""])
sketch20.MapMode = "FlatFace"
sketch20.addGeometry(Part.Circle(App.Vector(-97, 0, 0), App.Vector(0, 0, 1), 12), False)
sketch20.addGeometry(Part.Circle(App.Vector(-97, 0, 0), App.Vector(0, 0, 1), 10), False)
sketch20.addConstraint(Sketcher.Constraint("Coincident", 1, 3, 0, 3))
sketch20.addConstraint(Sketcher.Constraint("PointOnObject", 0, 3, -1))
sketch20.addConstraint(Sketcher.Constraint("Diameter", 0, Q("24 mm")))
sketch20.addConstraint(Sketcher.Constraint("Diameter", 1, Q("20.2 mm")))
sketch20.addConstraint(Sketcher.Constraint("DistanceX", 0, 3, -1, 1, Q("97 mm")))
pad20 = body26.newObject("PartDesign::Pad", "Pad019")
pad20.Profile = sketch20
pad20.Length = 10
doc.recompute()

boolean19 = body26.newObject("PartDesign::Boolean", "Boolean018")
boolean19.Type = "Cut"
boolean19.addObjects([body25])
body27 = doc.addObject("PartDesign::Body", "Body026")
body27.AllowCompound = True

# Sketch on XY plane
sketch21 = body27.newObject("Sketcher::SketchObject", "Sketch020")
sketch21.AttachmentSupport = (doc.getObject("XY_Plane026"), [""])
sketch21.MapMode = "FlatFace"
sketch21.addGeometry(Part.LineSegment(App.Vector(-87.5, -5, 0), App.Vector(-87.5, -6, 0)), False)
sketch21.addGeometry(Part.LineSegment(App.Vector(-87.5, -6, 0), App.Vector(-68.5, -6, 0)), False)
sketch21.addGeometry(Part.LineSegment(App.Vector(-68.5, -6, 0), App.Vector(-68.5, -5, 0)), False)
sketch21.addGeometry(Part.LineSegment(App.Vector(-68.5, -5, 0), App.Vector(-87.5, -5, 0)), False)
sketch21.addConstraint(Sketcher.Constraint("Coincident", 0, 2, 1, 1))
sketch21.addConstraint(Sketcher.Constraint("Coincident", 1, 2, 2, 1))
sketch21.addConstraint(Sketcher.Constraint("Coincident", 2, 2, 3, 1))
sketch21.addConstraint(Sketcher.Constraint("Coincident", 3, 2, 0, 1))
sketch21.addConstraint(Sketcher.Constraint("Vertical", 0))
sketch21.addConstraint(Sketcher.Constraint("Horizontal", 1))
sketch21.addConstraint(Sketcher.Constraint("Vertical", 2))
sketch21.addConstraint(Sketcher.Constraint("Horizontal", 3))
sketch21.addConstraint(Sketcher.Constraint("DistanceX", 1, 1, 1, 2, Q("19 mm")))
sketch21.addConstraint(Sketcher.Constraint("DistanceY", 0, 2, 0, 1, Q("1 mm")))
sketch21.addConstraint(Sketcher.Constraint("DistanceY", 0, 2, -1, 1, Q("6 mm")))
sketch21.addConstraint(Sketcher.Constraint("DistanceX", 0, 2, -1, 1, Q("87.5 mm")))
pad21 = body27.newObject("PartDesign::Pad", "Pad020")
pad21.Profile = sketch21
pad21.Length = 11
doc.recompute()

boolean20 = body27.newObject("PartDesign::Boolean", "Boolean019")
boolean20.Type = "Fuse"
boolean20.addObjects([body4])
doc.recompute()

boolean21 = body27.newObject("PartDesign::Boolean", "Boolean020")
boolean21.Type = "Fuse"
boolean21.addObjects([body5])
doc.recompute()

boolean22 = body27.newObject("PartDesign::Boolean", "Boolean021")
boolean22.Type = "Fuse"
boolean22.addObjects([body6])
doc.recompute()

boolean23 = body27.newObject("PartDesign::Boolean", "Boolean022")
boolean23.Type = "Fuse"
boolean23.addObjects([body26])
doc.recompute()

boolean24 = body27.newObject("PartDesign::Boolean", "Boolean023")
boolean24.Type = "Cut"
boolean24.addObjects([body3])
doc.recompute()

boolean25 = body27.newObject("PartDesign::Boolean", "Boolean024")
boolean25.Type = "Cut"
boolean25.addObjects([body2])
doc.recompute()

boolean26 = body27.newObject("PartDesign::Boolean", "Boolean025")
boolean26.Type = "Cut"
boolean26.addObjects([body])
body28 = doc.addObject("PartDesign::Body", "Body027")
doc.recompute()

mirroring = doc.addObject("Part::Mirroring", "Mirroring")
mirroring.Source = body27
mirroring.Base = App.Vector(0, 0, 0)
mirroring.Normal = App.Vector(1, 0, 0)
body28.BaseFeature = mirroring
doc.recompute()
body27.Visibility = False
mirroring.Visibility = False

doc.recompute()
